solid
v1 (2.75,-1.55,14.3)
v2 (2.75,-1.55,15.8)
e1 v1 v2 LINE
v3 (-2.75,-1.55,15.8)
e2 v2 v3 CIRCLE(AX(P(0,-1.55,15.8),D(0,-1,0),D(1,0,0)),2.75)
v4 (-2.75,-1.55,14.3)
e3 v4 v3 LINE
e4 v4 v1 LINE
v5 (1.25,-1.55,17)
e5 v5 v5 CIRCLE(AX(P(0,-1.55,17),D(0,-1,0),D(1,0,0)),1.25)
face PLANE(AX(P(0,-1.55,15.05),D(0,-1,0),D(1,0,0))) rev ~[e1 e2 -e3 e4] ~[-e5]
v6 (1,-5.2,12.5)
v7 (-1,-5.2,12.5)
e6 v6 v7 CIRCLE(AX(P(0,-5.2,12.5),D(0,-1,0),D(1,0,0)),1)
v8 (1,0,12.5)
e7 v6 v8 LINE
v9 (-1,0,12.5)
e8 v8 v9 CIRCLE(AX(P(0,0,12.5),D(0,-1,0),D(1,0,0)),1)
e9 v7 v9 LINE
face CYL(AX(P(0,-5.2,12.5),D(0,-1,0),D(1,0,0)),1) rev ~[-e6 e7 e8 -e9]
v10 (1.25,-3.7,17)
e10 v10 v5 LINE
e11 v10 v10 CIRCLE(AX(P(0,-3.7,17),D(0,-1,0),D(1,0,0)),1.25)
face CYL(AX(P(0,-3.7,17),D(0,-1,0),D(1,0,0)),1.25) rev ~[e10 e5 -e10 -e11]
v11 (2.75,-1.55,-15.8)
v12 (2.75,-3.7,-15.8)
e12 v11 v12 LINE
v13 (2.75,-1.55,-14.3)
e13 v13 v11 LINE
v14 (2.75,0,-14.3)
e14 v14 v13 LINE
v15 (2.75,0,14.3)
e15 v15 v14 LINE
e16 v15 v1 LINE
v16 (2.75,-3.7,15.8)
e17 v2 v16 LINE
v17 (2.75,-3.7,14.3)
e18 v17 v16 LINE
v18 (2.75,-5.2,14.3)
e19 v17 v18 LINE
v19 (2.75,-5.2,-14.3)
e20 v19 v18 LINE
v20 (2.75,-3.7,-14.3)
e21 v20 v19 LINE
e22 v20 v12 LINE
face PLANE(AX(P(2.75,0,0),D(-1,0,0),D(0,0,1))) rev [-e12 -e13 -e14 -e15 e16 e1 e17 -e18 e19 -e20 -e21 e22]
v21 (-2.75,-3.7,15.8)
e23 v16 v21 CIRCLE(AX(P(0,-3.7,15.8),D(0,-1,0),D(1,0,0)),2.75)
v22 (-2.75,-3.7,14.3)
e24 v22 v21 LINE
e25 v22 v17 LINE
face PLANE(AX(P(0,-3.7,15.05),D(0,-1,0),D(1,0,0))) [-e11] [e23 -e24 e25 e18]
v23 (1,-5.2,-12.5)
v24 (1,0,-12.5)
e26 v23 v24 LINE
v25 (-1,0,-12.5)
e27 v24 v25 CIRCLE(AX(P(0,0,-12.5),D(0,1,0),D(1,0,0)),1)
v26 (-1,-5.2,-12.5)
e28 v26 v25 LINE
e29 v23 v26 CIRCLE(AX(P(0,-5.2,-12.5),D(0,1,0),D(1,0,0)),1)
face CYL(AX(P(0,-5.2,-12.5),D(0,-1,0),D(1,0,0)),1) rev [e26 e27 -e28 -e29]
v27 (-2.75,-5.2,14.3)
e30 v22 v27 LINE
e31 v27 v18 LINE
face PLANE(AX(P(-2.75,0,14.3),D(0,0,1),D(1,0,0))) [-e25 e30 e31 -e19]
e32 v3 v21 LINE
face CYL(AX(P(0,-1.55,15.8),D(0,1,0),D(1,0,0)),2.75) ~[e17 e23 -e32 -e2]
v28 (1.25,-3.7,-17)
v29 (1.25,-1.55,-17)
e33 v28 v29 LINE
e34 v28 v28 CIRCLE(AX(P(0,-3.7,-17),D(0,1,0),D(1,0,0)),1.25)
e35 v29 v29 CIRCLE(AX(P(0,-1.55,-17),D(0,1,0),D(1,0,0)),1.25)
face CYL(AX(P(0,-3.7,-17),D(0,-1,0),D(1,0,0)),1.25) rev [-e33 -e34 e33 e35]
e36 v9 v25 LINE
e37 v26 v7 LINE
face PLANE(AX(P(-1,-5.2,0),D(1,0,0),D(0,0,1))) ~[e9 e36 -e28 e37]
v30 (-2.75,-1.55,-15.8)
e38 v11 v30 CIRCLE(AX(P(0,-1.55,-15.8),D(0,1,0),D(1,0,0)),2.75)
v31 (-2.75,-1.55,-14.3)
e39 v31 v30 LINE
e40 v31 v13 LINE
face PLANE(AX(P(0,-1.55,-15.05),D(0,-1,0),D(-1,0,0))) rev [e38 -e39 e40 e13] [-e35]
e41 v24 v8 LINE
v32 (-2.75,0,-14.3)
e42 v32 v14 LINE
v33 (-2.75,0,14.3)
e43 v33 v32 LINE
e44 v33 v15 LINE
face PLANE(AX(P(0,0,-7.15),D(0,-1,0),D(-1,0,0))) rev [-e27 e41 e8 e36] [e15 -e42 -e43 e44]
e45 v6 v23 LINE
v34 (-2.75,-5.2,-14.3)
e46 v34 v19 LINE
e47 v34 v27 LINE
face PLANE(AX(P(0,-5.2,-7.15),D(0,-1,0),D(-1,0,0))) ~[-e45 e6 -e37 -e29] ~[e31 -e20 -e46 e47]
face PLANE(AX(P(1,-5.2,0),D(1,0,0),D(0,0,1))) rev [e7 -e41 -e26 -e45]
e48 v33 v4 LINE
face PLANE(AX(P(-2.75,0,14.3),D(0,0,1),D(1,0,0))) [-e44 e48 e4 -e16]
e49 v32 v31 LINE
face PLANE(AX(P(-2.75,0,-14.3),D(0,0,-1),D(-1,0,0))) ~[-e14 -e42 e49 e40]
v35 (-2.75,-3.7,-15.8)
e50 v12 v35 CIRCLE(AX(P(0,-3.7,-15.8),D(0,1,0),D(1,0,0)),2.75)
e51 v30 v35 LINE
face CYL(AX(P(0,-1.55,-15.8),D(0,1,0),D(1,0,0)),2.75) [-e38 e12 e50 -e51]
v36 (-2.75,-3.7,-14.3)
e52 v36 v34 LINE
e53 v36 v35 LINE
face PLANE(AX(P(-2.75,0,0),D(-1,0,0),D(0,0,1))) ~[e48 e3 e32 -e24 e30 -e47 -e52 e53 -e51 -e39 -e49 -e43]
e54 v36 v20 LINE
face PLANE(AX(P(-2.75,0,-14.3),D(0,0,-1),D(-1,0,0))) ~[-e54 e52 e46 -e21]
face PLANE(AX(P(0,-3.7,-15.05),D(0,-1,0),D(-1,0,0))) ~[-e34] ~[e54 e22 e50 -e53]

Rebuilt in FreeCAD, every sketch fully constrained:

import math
import FreeCAD as App
import Part
import Sketcher
from FreeCAD import Vector


def add_polygon(sketch, points):
    """Adds a closed chain of lines whose ends are joined by coincident constraints."""
    first, n = sketch.GeometryCount, len(points)
    for a, b in zip(points, points[1:] + points[:1]):
        sketch.addGeometry(Part.LineSegment(App.Vector(*a, 0), App.Vector(*b, 0)), False)
    for i in range(n):
        sketch.addConstraint(Sketcher.Constraint("Coincident", first + i, 2, first + (i + 1) % n, 1))

doc = App.newDocument("Part")
body = doc.addObject("PartDesign::Body", "Body")

sketch1 = doc.addObject("Sketcher::SketchObject", "Sketch")
body.addObject(sketch1)
sketch1.AttachmentSupport = (doc.XZ_Plane, [""])
sketch1.MapMode = "FlatFace"
add_polygon(sketch1, [(-3, 14), (-3, 0), (3, 0), (3, 14)])
sketch1.addConstraint(Sketcher.Constraint("Vertical", 0))
sketch1.addConstraint(Sketcher.Constraint("Horizontal", 1))
sketch1.addConstraint(Sketcher.Constraint("Vertical", 2))
sketch1.addConstraint(Sketcher.Constraint("Horizontal", 3))
sketch1.addConstraint(Sketcher.Constraint("Symmetric", 0, 2, 1, 2, -1, 1))
sketch1.addConstraint(Sketcher.Constraint("DistanceX", 1, 1, 1, 2, 5.5))
sketch1.addConstraint(Sketcher.Constraint("DistanceY", 0, 2, 0, 1, 14.3))
pad1 = doc.addObject("PartDesign::Pad", "Pad")
body.addObject(pad1)
pad1.Profile = sketch1
pad1.Length = 5.2

sketch2 = doc.addObject("Sketcher::SketchObject", "Sketch001")
body.addObject(sketch2)
sketch2.AttachmentSupport = (doc.XZ_Plane, [""])
sketch2.MapMode = "FlatFace"
sketch2.AttachmentOffset = App.Placement(Vector(0, 0, 5.2), App.Rotation())
sketch2.addGeometry(Part.LineSegment(Vector(-1, 12.5, 0), Vector(-1, 0, 0)), False)
sketch2.addGeometry(Part.LineSegment(Vector(-1, 0, 0), Vector(1, 0, 0)), False)
sketch2.addGeometry(Part.LineSegment(Vector(1, 0, 0), Vector(1, 12.5, 0)), False)
sketch2.addGeometry(Part.ArcOfCircle(Part.Circle(Vector(0, 12.5, 0), Vector(0, 0, 1), 1), math.radians(0), math.radians(180)), False)
sketch2.addConstraint(Sketcher.Constraint("Coincident", 0, 2, 1, 1))
sketch2.addConstraint(Sketcher.Constraint("Coincident", 1, 2, 2, 1))
sketch2.addConstraint(Sketcher.Constraint("Tangent", 2, 2, 3, 1))
sketch2.addConstraint(Sketcher.Constraint("Tangent", 3, 2, 0, 1))
sketch2.addConstraint(Sketcher.Constraint("Vertical", 0))
sketch2.addConstraint(Sketcher.Constraint("Horizontal", 1))
sketch2.addConstraint(Sketcher.Constraint("Vertical", 2))
sketch2.addConstraint(Sketcher.Constraint("Symmetric", 0, 2, 1, 2, -1, 1))
sketch2.addConstraint(Sketcher.Constraint("Radius", 3, 1.0))
sketch2.addConstraint(Sketcher.Constraint("DistanceY", 0, 2, 0, 1, 12.5))
pocket1 = doc.addObject("PartDesign::Pocket", "Pocket")
body.addObject(pocket1)
pocket1.Profile = sketch2
pocket1.Length = 5.5

sketch3 = doc.addObject("Sketcher::SketchObject", "Sketch002")
body.addObject(sketch3)
sketch3.AttachmentSupport = (doc.XZ_Plane, [""])
sketch3.MapMode = "FlatFace"
sketch3.AttachmentOffset = App.Placement(Vector(0, 0, 1.55), App.Rotation())
sketch3.addGeometry(Part.LineSegment(Vector(-2.8, 15.8, 0), Vector(-2.8, 14.3, 0)), False)
sketch3.addGeometry(Part.LineSegment(Vector(-2.8, 14.3, 0), Vector(2.8, 14.3, 0)), False)
sketch3.addGeometry(Part.LineSegment(Vector(2.8, 14.3, 0), Vector(2.8, 15.8, 0)), False)
sketch3.addGeometry(Part.ArcOfCircle(Part.Circle(Vector(0, 15.8, 0), Vector(0, 0, 1), 2.8), math.radians(0), math.radians(180)), False)
sketch3.addConstraint(Sketcher.Constraint("Coincident", 0, 2, 1, 1))
sketch3.addConstraint(Sketcher.Constraint("Coincident", 1, 2, 2, 1))
sketch3.addConstraint(Sketcher.Constraint("Tangent", 2, 2, 3, 1))
sketch3.addConstraint(Sketcher.Constraint("Tangent", 3, 2, 0, 1))
sketch3.addConstraint(Sketcher.Constraint("Vertical", 0))
sketch3.addConstraint(Sketcher.Constraint("Horizontal", 1))
sketch3.addConstraint(Sketcher.Constraint("Vertical", 2))
sketch3.addConstraint(Sketcher.Constraint("PointOnObject", 3, 3, -2))
sketch3.addConstraint(Sketcher.Constraint("Radius", 3, 2.75))
sketch3.addConstraint(Sketcher.Constraint("DistanceY", 0, 2, 0, 1, 1.5))
sketch3.addConstraint(Sketcher.Constraint("DistanceY", -1, 1, 3, 3, 15.8))
pad2 = doc.addObject("PartDesign::Pad", "Pad001")
body.addObject(pad2)
pad2.Profile = sketch3
pad2.Length = 2.15

sketch4 = doc.addObject("Sketcher::SketchObject", "Sketch003")
body.addObject(sketch4)
sketch4.AttachmentSupport = (doc.XZ_Plane, [""])
sketch4.MapMode = "FlatFace"
sketch4.AttachmentOffset = App.Placement(Vector(0, 0, 3.7), App.Rotation())
sketch4.addGeometry(Part.Circle(Vector(0, 17, 0), Vector(0, 0, 1), 1.2), False)
sketch4.addConstraint(Sketcher.Constraint("PointOnObject", 0, 3, -2))
sketch4.addConstraint(Sketcher.Constraint("Diameter", 0, 2.5))
sketch4.addConstraint(Sketcher.Constraint("DistanceY", -1, 1, 0, 3, 17.0))
pocket2 = doc.addObject("PartDesign::Pocket", "Pocket001")
body.addObject(pocket2)
pocket2.Profile = sketch4
pocket2.Length = 3
body2 = doc.addObject("PartDesign::Body", "Body001")
doc.recompute()

body2.BaseFeature = body
doc.recompute()

mirroring = doc.addObject("Part::Mirroring", "Mirroring")
mirroring.Source = body
mirroring.Base = Vector(0, 0, 0)
mirroring.Normal = Vector(0, 0, 1)
body3 = doc.addObject("PartDesign::Body", "Body002")
body3.BaseFeature = mirroring
boolean = doc.addObject("PartDesign::Boolean", "Boolean")
body2.addObject(boolean)
boolean.Type = "Fuse"
boolean.addObjects([body3])
doc.recompute()
mirroring.Visibility = False

doc.recompute()
